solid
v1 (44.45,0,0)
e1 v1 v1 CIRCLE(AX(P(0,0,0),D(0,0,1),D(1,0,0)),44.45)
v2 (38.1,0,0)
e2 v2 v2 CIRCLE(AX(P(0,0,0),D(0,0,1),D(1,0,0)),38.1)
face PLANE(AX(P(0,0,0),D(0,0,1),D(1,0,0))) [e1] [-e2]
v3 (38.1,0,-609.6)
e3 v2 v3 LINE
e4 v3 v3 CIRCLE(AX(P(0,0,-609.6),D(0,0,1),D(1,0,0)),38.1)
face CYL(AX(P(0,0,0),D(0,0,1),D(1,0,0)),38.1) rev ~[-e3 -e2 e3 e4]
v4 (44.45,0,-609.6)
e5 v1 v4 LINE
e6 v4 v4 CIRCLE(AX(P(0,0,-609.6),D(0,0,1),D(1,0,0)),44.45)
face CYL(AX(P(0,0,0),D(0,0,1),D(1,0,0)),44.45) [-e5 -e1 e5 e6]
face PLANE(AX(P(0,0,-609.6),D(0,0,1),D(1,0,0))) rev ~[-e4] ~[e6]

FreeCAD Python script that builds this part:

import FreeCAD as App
import Part
import Sketcher

V = App.Vector
Q = App.Units.Quantity

doc = App.newDocument("Part")
body = doc.addObject("PartDesign::Body", "Body")

# Sketch on XY plane
sketch1 = body.newObject("Sketcher::SketchObject", "Sketch")
sketch1.AttachmentSupport = (doc.getObject("XY_Plane"), [""])
sketch1.MapMode = "FlatFace"
sketch1.addGeometry(Part.Circle(V(0, 0, 0), V(0, 0, 1), 44), False)
sketch1.addGeometry(Part.Circle(V(0, 0, 0), V(0, 0, 1), 38), False)
sketch1.addConstraint(Sketcher.Constraint("Coincident", 0, 3, -1, 1))
sketch1.addConstraint(Sketcher.Constraint("Coincident", 1, 3, -1, 1))
sketch1.addConstraint(Sketcher.Constraint("Diameter", 1, Q("3 in")))
sketch1.addConstraint(Sketcher.Constraint("Diameter", 0, Q("3.5 in")))
pad1 = body.newObject("PartDesign::Pad", "Pad")
pad1.Profile = sketch1
pad1.Length = Q("24 in")
pad1.Reversed = True

doc.recompute()
